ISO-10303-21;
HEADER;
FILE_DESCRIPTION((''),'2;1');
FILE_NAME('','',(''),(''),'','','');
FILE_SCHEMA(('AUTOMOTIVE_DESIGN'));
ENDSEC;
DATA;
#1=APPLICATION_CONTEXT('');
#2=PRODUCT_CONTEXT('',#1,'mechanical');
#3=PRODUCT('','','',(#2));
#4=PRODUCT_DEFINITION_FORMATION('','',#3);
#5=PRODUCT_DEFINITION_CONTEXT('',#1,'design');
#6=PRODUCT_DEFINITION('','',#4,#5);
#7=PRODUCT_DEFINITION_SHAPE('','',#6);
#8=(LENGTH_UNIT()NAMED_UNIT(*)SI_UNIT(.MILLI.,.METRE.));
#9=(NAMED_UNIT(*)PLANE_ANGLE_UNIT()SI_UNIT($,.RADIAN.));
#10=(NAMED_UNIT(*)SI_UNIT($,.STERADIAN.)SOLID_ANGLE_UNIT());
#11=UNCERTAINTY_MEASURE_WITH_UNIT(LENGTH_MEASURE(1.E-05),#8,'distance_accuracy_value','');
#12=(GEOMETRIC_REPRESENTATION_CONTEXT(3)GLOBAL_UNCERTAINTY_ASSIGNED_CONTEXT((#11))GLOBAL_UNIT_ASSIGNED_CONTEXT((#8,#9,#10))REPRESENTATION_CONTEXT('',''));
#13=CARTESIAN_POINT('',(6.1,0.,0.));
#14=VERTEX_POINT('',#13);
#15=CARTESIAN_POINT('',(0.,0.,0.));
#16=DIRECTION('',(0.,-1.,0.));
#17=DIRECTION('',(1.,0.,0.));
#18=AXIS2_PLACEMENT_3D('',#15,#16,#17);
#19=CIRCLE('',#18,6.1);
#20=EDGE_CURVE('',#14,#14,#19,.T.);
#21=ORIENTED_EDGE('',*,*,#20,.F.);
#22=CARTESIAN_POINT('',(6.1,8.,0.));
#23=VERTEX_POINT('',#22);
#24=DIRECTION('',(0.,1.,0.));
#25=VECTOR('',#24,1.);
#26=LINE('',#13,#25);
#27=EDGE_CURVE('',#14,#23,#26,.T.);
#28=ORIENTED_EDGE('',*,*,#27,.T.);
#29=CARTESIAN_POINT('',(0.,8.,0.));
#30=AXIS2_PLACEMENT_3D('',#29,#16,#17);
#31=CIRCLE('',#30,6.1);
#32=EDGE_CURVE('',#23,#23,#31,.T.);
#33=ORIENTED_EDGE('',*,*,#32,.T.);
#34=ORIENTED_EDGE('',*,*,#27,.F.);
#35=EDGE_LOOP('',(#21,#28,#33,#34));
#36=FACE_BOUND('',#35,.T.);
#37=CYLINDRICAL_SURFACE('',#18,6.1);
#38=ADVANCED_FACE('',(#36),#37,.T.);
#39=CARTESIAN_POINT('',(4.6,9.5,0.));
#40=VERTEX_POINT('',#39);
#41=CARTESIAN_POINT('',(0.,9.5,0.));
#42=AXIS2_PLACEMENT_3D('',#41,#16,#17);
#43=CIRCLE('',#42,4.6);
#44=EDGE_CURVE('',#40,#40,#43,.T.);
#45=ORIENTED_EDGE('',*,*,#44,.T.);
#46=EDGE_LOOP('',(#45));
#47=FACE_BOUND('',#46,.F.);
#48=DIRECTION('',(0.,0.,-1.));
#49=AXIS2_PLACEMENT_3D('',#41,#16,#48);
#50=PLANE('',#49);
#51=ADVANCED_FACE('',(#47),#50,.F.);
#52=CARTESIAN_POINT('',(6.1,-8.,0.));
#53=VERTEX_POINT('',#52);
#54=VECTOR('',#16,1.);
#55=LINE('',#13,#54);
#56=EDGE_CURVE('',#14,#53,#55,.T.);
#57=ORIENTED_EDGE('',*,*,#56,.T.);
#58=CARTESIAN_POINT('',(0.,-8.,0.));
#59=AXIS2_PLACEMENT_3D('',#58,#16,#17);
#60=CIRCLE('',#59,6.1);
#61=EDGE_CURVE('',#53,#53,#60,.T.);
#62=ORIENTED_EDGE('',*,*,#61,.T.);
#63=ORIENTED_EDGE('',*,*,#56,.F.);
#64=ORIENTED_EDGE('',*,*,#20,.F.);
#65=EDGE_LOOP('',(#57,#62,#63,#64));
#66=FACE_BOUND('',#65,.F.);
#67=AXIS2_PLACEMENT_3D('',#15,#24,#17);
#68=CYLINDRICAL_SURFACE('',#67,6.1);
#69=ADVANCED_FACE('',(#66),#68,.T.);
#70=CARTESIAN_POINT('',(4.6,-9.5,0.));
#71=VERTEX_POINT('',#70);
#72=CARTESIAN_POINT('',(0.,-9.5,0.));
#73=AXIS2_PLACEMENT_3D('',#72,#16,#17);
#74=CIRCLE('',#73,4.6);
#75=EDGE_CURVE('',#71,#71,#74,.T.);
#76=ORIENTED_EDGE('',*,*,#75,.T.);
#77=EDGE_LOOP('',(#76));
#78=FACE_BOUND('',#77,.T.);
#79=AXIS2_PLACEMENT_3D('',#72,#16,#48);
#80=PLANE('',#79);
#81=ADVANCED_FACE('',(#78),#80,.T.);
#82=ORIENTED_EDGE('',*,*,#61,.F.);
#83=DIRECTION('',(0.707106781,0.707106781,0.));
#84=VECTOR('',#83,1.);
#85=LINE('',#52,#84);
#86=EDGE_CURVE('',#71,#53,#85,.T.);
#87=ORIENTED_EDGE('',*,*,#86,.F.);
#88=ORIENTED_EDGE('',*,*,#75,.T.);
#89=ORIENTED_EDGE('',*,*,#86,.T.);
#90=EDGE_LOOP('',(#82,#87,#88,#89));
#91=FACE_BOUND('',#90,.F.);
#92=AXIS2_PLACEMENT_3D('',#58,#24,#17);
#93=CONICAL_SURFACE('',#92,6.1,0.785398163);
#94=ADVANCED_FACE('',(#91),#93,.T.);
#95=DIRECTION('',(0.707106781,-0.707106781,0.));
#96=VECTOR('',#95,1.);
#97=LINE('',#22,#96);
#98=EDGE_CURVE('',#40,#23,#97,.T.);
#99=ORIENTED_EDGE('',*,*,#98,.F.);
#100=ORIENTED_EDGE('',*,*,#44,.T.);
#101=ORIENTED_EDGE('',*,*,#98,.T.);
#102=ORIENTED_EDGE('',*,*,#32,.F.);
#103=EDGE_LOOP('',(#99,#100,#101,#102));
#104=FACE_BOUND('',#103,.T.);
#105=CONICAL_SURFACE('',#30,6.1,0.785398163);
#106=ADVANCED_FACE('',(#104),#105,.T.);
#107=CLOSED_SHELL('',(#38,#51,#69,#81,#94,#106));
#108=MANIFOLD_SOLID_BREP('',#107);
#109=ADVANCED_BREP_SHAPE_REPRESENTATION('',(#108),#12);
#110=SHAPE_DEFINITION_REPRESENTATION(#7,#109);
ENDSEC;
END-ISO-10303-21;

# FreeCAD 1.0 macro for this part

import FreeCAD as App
import Part
import Sketcher
from FreeCAD import Vector
Q = App.Units.Quantity


def edges_at(feature, points):
    """Names of the edges that pass closest to the given points."""
    edges = feature.Shape.Edges
    near = lambda p: min(range(len(edges)), key=lambda i: edges[i].distToShape(Part.Vertex(*p))[0])
    return sorted({f"Edge{near(p) + 1}" for p in points})

doc = App.newDocument("Part")
body = doc.addObject("PartDesign::Body", "Body")

# Sketch on XZ plane
sketch1 = body.newObject("Sketcher::SketchObject", "Sketch")
sketch1.AttachmentSupport = (doc.getObject("XZ_Plane"), [""])
sketch1.MapMode = "FlatFace"
sketch1.addGeometry(Part.Circle(Vector(0, 0, 0), Vector(0, 0, 1), 6.1), False)
sketch1.addConstraint(Sketcher.Constraint("Coincident", 0, 3, -1, 1))
sketch1.addConstraint(Sketcher.Constraint("Diameter", 0, Q("12.2 mm")))
pad1 = body.newObject("PartDesign::Pad", "Pad")
pad1.Profile = sketch1
pad1.Length = 19
pad1.Midplane = True
doc.recompute()

chamfer = body.newObject("PartDesign::Chamfer", "Chamfer")
chamfer.Base = (pad1, edges_at(pad1, [(-6.1, 9.5, 0)]))
chamfer.Size = 1.5
doc.recompute()

chamfer2 = body.newObject("PartDesign::Chamfer", "Chamfer001")
chamfer2.Base = (chamfer, edges_at(chamfer, [(-6.1, -9.5, 0)]))
chamfer2.Size = 1.5

doc.recompute()
